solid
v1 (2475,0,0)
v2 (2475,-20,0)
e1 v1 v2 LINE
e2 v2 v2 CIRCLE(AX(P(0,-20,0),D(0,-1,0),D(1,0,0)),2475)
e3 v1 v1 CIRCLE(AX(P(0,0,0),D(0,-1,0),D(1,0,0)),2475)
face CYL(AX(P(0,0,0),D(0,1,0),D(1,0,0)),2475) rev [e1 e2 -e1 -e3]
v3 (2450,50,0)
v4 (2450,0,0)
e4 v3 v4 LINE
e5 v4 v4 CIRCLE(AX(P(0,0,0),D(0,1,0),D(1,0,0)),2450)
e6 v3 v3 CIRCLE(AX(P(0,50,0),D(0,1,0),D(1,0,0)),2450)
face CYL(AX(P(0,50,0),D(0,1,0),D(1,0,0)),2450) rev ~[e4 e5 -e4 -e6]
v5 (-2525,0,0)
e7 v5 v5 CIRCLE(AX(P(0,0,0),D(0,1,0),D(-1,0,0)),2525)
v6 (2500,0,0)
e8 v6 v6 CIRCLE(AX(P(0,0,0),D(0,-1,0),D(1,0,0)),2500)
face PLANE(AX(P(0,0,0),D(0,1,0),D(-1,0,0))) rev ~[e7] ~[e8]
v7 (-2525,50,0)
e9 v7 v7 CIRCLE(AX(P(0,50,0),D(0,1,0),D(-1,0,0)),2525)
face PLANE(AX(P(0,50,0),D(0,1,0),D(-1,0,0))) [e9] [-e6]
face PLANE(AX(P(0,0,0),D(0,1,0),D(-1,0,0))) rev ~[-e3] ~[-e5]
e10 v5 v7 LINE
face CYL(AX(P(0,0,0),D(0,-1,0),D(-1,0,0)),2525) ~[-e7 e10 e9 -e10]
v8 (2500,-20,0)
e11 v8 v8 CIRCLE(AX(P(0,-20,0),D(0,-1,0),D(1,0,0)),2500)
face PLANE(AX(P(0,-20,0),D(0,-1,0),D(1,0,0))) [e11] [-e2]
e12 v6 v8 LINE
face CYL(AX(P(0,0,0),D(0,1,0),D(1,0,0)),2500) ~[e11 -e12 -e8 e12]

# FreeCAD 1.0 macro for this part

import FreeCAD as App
import Part
import Sketcher
Q = App.Units.Quantity

doc = App.newDocument("Part")
body = doc.addObject("PartDesign::Body", "Body")

# Sketch on XZ plane
sketch1 = body.newObject("Sketcher::SketchObject", "Sketch")
sketch1.AttachmentSupport = (doc.getObject("XZ_Plane"), [""])
sketch1.MapMode = "FlatFace"
sketch1.addGeometry(Part.Circle(App.Vector(0, 0, 0), App.Vector(0, 0, 1), 2525), False)
sketch1.addConstraint([
    Sketcher.Constraint("Coincident", 0, 3, -1, 1),
    Sketcher.Constraint("Diameter", 0, Q("5050 mm")),
])
pad1 = body.newObject("PartDesign::Pad", "Pad")
pad1.Profile = sketch1
pad1.Length = 50
pad1.Reversed = True

# Sketch on XZ plane
sketch2 = body.newObject("Sketcher::SketchObject", "Sketch001")
sketch2.AttachmentSupport = (doc.getObject("XZ_Plane"), [""])
sketch2.MapMode = "FlatFace"
sketch2.addGeometry([
    Part.Circle(App.Vector(0, 0, 0), App.Vector(0, 0, 1), 2500),
    Part.Circle(App.Vector(0, 0, 0), App.Vector(0, 0, 1), 2475),
], False)
sketch2.addConstraint([
    Sketcher.Constraint("Coincident", 0, 3, -1, 1),
    Sketcher.Constraint("Coincident", 1, 3, -1, 1),
    Sketcher.Constraint("Diameter", 0, Q("5000 mm")),
    Sketcher.Constraint("Diameter", 1, Q("4950 mm")),
])
pad2 = body.newObject("PartDesign::Pad", "Pad001")
pad2.Profile = sketch2
pad2.Length = 20

# Sketch on XZ plane
sketch3 = body.newObject("Sketcher::SketchObject", "Sketch002")
sketch3.AttachmentSupport = (doc.getObject("XZ_Plane"), [""])
sketch3.MapMode = "FlatFace"
sketch3.AttachmentOffset = App.Placement(App.Vector(0, 0, -50), App.Rotation())
sketch3.addGeometry(Part.Circle(App.Vector(0, 0, 0), App.Vector(0, 0, 1), 2450), False)
sketch3.addConstraint([
    Sketcher.Constraint("Coincident", 0, 3, -1, 1),
    Sketcher.Constraint("Diameter", 0, Q("4900 mm")),
])
pocket1 = body.newObject("PartDesign::Pocket", "Pocket")
pocket1.Profile = sketch3
pocket1.Type = "ThroughAll"
pocket1.Reversed = True

doc.recompute()
